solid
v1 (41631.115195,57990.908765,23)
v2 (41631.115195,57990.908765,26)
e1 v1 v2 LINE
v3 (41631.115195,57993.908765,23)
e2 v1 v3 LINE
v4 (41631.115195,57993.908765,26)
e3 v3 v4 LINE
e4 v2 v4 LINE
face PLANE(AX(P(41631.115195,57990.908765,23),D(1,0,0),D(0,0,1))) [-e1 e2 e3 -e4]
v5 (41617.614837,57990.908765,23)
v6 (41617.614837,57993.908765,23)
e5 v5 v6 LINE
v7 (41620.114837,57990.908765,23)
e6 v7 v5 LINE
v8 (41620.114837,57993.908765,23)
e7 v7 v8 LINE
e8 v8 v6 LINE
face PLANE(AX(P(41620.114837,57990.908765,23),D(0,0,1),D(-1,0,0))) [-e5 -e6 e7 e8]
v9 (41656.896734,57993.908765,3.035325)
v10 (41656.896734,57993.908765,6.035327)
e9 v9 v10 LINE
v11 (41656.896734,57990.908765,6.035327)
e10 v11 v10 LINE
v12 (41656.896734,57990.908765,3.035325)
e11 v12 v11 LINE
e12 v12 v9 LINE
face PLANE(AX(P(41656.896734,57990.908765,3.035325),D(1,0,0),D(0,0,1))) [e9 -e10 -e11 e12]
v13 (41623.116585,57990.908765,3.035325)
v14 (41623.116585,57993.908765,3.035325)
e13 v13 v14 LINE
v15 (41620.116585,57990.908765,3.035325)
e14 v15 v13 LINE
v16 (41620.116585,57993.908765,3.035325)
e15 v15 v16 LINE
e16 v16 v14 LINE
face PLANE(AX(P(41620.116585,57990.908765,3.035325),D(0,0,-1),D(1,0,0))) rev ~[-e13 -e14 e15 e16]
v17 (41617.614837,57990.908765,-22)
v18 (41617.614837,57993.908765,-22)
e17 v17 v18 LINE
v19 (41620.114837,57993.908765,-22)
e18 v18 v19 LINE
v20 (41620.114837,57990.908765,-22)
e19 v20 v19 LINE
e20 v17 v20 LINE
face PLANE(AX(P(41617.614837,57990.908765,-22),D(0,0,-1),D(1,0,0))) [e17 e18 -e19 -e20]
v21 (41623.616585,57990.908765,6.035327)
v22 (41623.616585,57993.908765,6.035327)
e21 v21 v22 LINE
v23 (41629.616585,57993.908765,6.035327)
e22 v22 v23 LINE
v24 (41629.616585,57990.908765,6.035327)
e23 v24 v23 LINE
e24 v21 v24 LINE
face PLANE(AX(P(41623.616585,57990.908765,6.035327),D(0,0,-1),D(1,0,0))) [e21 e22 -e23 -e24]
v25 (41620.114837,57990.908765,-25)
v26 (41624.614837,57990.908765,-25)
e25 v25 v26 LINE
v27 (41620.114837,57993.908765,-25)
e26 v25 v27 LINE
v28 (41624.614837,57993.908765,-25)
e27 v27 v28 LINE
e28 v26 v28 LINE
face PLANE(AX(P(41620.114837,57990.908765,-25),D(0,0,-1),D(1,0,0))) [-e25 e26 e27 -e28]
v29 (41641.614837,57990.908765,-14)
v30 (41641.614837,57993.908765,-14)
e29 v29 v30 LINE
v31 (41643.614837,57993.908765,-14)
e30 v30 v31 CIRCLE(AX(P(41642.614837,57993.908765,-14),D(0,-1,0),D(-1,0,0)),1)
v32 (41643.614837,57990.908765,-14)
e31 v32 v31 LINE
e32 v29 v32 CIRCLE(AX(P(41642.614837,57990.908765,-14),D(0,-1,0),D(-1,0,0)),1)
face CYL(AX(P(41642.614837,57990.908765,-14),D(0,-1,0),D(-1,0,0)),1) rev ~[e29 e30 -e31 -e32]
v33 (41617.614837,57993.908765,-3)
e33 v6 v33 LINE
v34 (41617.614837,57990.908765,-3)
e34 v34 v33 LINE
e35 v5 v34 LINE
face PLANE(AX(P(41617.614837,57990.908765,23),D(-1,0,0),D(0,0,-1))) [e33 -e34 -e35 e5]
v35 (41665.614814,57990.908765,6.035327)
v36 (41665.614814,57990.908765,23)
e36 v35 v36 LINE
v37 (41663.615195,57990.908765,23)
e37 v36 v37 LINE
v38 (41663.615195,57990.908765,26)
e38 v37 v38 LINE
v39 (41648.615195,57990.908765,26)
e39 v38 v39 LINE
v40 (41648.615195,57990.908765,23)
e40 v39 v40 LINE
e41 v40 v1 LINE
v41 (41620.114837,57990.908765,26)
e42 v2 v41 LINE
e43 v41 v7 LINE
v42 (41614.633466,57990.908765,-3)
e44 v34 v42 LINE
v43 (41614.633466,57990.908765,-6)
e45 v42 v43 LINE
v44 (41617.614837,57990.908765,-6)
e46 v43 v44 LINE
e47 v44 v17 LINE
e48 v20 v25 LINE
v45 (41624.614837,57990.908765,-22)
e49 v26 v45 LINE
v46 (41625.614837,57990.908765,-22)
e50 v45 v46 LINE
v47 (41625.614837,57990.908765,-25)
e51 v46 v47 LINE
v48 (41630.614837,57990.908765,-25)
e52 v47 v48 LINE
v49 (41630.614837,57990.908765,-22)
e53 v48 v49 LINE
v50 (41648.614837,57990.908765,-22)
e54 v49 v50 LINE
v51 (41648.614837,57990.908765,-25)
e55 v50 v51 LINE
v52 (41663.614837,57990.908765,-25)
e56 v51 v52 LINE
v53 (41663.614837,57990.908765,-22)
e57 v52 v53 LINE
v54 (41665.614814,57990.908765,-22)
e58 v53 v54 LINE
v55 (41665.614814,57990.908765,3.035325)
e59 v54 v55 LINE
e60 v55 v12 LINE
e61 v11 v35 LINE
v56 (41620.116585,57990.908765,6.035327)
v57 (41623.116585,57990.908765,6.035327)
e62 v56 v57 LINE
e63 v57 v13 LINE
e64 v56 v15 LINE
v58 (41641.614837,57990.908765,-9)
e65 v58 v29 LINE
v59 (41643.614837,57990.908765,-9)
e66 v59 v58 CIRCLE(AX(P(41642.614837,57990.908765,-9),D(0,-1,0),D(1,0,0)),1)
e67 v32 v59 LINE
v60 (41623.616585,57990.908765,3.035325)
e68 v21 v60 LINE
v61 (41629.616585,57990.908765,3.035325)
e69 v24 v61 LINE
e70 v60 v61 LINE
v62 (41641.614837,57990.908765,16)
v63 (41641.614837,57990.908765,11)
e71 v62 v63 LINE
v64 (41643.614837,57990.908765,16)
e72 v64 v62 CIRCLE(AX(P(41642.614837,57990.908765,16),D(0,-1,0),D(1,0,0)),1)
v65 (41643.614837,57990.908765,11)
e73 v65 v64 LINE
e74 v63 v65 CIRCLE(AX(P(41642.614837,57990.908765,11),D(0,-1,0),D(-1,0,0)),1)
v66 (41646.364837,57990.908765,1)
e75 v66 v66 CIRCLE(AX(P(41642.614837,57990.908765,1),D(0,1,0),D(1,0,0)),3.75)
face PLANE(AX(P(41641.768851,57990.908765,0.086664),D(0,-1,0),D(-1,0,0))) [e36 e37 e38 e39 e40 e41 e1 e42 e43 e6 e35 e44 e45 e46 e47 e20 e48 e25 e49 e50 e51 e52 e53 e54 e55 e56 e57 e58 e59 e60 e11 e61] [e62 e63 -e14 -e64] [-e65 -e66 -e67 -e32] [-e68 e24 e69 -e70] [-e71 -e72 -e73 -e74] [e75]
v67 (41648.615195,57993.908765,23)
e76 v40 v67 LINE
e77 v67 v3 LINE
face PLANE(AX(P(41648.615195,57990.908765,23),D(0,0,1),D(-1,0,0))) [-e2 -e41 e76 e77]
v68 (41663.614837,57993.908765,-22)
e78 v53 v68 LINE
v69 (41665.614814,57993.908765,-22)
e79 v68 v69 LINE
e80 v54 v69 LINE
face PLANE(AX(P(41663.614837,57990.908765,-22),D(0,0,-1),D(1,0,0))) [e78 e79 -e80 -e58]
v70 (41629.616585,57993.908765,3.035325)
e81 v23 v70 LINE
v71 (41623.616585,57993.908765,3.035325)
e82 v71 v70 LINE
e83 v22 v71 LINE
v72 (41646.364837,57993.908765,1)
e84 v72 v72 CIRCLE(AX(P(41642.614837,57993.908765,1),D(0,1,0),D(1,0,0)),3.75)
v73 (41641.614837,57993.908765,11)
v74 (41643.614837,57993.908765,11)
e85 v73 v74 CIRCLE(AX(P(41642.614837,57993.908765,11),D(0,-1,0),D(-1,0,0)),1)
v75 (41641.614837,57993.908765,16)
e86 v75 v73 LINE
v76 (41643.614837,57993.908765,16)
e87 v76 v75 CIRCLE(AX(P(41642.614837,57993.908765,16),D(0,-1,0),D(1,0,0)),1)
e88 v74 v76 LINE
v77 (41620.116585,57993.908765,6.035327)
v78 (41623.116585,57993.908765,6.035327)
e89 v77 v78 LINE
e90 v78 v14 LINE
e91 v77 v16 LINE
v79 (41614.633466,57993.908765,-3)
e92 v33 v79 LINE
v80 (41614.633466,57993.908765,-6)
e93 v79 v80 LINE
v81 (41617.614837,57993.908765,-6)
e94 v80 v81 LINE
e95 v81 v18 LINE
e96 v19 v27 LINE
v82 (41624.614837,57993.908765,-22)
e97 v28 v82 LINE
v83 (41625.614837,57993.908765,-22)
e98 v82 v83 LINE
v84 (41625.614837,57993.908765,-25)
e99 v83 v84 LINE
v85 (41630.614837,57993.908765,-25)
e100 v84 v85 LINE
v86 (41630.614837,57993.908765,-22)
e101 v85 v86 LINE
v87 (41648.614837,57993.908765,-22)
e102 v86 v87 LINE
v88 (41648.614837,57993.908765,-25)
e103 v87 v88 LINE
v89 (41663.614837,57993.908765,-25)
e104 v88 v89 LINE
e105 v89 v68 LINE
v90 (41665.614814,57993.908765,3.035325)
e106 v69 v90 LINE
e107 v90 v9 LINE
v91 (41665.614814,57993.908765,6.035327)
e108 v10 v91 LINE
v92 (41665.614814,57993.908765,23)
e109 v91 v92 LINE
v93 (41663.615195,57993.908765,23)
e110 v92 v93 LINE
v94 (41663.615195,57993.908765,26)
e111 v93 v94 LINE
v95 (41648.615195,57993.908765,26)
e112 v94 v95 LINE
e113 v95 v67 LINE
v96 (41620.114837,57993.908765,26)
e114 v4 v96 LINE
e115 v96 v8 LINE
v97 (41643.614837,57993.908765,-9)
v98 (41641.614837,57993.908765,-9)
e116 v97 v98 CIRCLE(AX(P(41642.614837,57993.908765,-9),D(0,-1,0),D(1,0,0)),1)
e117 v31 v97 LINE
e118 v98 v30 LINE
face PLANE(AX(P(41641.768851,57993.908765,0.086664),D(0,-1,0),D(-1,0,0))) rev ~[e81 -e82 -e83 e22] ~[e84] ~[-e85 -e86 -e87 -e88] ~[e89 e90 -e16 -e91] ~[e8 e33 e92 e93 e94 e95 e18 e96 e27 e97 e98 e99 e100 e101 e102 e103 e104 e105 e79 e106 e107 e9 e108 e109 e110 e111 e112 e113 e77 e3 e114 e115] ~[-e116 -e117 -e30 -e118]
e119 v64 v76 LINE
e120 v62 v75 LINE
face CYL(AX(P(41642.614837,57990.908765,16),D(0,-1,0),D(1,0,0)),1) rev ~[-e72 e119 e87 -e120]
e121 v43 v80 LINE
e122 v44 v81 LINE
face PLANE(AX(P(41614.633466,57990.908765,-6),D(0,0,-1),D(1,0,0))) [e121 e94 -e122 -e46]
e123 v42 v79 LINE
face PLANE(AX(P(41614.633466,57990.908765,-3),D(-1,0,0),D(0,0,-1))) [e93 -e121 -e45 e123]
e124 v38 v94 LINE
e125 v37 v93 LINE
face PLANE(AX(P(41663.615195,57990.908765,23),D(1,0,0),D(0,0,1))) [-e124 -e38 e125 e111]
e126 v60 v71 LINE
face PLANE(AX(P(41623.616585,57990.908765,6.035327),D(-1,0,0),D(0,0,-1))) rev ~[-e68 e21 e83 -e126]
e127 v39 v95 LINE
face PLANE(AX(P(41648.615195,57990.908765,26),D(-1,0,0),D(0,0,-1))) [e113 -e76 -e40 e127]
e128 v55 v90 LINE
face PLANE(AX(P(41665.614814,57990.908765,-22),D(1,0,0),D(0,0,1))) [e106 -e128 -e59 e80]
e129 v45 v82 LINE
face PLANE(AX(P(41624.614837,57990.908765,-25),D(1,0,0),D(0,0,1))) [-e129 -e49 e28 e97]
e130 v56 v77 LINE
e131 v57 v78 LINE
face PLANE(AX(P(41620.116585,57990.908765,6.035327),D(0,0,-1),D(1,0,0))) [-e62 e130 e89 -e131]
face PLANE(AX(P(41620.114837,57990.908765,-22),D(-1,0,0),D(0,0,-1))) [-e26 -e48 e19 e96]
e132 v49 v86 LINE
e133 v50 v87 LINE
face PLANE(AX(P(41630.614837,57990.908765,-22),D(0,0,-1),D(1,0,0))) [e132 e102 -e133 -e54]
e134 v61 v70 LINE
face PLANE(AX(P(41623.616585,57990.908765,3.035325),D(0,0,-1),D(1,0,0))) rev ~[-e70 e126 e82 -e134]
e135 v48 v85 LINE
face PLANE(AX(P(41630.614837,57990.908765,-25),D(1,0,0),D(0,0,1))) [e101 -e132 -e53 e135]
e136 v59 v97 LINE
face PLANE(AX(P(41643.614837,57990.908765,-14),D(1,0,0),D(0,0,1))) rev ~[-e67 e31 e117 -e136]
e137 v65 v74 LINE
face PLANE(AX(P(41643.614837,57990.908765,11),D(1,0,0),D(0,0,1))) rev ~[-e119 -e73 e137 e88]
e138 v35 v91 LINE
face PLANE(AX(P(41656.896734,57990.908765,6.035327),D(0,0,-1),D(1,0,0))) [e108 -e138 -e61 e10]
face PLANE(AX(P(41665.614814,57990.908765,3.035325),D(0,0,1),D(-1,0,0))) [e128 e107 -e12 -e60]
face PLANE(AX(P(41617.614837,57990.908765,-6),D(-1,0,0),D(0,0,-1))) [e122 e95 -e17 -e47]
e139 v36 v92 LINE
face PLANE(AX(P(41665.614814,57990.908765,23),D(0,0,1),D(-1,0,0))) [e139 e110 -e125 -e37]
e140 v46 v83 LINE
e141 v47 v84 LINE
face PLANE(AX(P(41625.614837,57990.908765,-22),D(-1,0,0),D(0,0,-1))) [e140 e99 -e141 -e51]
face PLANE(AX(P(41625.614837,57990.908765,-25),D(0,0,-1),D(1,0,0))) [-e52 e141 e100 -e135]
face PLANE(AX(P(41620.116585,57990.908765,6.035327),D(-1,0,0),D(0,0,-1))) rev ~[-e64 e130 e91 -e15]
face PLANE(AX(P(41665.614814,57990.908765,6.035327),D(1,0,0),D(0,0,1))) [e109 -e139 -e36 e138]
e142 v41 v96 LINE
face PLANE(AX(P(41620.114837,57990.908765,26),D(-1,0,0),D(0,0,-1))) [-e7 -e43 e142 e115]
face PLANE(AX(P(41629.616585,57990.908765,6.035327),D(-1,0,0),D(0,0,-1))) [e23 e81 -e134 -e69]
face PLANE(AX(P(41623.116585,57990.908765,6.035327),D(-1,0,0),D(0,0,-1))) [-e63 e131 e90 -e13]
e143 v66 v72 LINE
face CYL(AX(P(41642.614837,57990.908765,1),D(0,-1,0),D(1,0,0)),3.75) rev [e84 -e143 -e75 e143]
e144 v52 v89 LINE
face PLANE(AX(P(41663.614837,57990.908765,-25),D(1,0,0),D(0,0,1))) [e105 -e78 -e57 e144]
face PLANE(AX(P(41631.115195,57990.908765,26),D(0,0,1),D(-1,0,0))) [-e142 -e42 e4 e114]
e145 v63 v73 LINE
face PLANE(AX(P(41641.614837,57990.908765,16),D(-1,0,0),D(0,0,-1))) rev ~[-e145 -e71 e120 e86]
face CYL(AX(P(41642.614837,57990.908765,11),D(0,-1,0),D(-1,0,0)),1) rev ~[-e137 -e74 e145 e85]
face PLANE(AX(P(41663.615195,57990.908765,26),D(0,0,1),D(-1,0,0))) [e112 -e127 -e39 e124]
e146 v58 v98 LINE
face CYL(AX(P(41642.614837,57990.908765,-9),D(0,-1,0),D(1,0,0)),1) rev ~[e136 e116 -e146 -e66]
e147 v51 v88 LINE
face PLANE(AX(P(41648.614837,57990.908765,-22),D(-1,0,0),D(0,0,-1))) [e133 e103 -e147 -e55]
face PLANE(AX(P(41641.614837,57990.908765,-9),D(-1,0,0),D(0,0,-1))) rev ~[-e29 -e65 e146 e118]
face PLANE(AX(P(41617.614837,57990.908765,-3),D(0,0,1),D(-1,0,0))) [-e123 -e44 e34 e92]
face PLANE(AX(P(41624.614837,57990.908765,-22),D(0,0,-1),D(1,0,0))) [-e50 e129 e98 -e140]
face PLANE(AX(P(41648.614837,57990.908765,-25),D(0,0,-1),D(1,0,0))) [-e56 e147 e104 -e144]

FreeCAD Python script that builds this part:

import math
import FreeCAD as App
import Part
import Sketcher

V = App.Vector

doc = App.newDocument("Part")
body = doc.addObject("PartDesign::Body", "Body")

# Sketch on XY plane
sketch1 = body.newObject("Sketcher::SketchObject", "Sketch")
sketch1.AttachmentSupport = (doc.getObject("XY_Plane"), [""])
sketch1.MapMode = "FlatFace"
sketch1.addGeometry([
    Part.LineSegment(V(41648.614837, 58015.908765, 0), V(41630.614837, 58015.908765, 0)),  # 0
    Part.LineSegment(V(41630.614837, 58015.908765, 0), V(41630.614837, 58018.908765, 0)),  # 1
    Part.LineSegment(V(41630.614837, 58018.908765, 0), V(41625.614837, 58018.908765, 0)),  # 2
    Part.LineSegment(V(41625.614837, 58018.908765, 0), V(41625.614837, 58015.908765, 0)),  # 3
    Part.LineSegment(V(41625.614837, 58015.908765, 0), V(41624.614837, 58015.908765, 0)),  # 4
    Part.LineSegment(V(41624.614837, 58015.908765, 0), V(41624.614837, 58018.908765, 0)),  # 5
    Part.LineSegment(V(41624.614837, 58018.908765, 0), V(41620.114837, 58018.908765, 0)),  # 6
    Part.LineSegment(V(41620.114837, 58018.908765, 0), V(41620.114837, 58015.908765, 0)),  # 7
    Part.LineSegment(V(41620.114837, 58015.908765, 0), V(41617.614837, 58015.908765, 0)),  # 8
    Part.LineSegment(V(41617.614837, 58015.908765, 0), V(41617.614837, 57999.908765, 0)),  # 9
    Part.LineSegment(V(41617.614837, 57999.908765, 0), V(41614.633466, 57999.908765, 0)),  # 10
    Part.LineSegment(V(41614.633466, 57999.908765, 0), V(41614.633466, 57996.908765, 0)),  # 11
    Part.LineSegment(V(41614.633466, 57996.908765, 0), V(41617.614837, 57996.908765, 0)),  # 12
    Part.LineSegment(V(41617.614837, 57996.908765, 0), V(41617.614837, 57970.908765, 0)),  # 13
    Part.LineSegment(V(41617.614837, 57970.908765, 0), V(41620.114837, 57970.908765, 0)),  # 14
    Part.LineSegment(V(41620.114837, 57970.908765, 0), V(41620.114837, 57967.908765, 0)),  # 15
    Part.LineSegment(V(41620.114837, 57967.908765, 0), V(41631.115195, 57967.908765, 0)),  # 16
    Part.LineSegment(V(41631.115195, 57967.908765, 0), V(41631.115195, 57970.908765, 0)),  # 17
    Part.LineSegment(V(41631.115195, 57970.908765, 0), V(41648.615195, 57970.908765, 0)),  # 18
    Part.LineSegment(V(41648.615195, 57970.908765, 0), V(41648.615195, 57967.908765, 0)),  # 19
    Part.LineSegment(V(41648.615195, 57967.908765, 0), V(41663.615195, 57967.908765, 0)),  # 20
    Part.LineSegment(V(41663.615195, 57967.908765, 0), V(41663.615195, 57970.908765, 0)),  # 21
    Part.LineSegment(V(41663.615195, 57970.908765, 0), V(41665.614814, 57970.908765, 0)),  # 22
    Part.LineSegment(V(41665.614814, 57970.908765, 0), V(41665.614814, 57987.873439, 0)),  # 23
    Part.LineSegment(V(41665.614814, 57987.873439, 0), V(41656.896734, 57987.873439, 0)),  # 24
    Part.LineSegment(V(41656.896734, 57987.873439, 0), V(41656.896734, 57990.87344, 0)),  # 25
    Part.LineSegment(V(41656.896734, 57990.87344, 0), V(41665.614814, 57990.87344, 0)),  # 26
    Part.LineSegment(V(41665.614814, 57990.87344, 0), V(41665.614814, 58015.908765, 0)),  # 27
    Part.LineSegment(V(41665.614814, 58015.908765, 0), V(41663.614837, 58015.908765, 0)),  # 28
    Part.LineSegment(V(41663.614837, 58015.908765, 0), V(41663.614837, 58018.908765, 0)),  # 29
    Part.LineSegment(V(41663.614837, 58018.908765, 0), V(41648.614837, 58018.908765, 0)),  # 30
    Part.LineSegment(V(41648.614837, 58018.908765, 0), V(41648.614837, 58015.908765, 0)),  # 31
    Part.LineSegment(V(41643.614837, 57982.908765, 0), V(41643.614837, 57977.908765, 0)),  # 32
    Part.ArcOfCircle(Part.Circle(V(41642.614837, 57977.908765, 0), V(0, 0, 1), 1), math.radians(180), math.radians(360)),  # 33
    Part.LineSegment(V(41641.614837, 57977.908765, 0), V(41641.614837, 57982.908765, 0)),  # 34
    Part.ArcOfCircle(Part.Circle(V(41642.614837, 57982.908765, 0), V(0, 0, 1), 1), math.radians(0), math.radians(180)),  # 35
    Part.LineSegment(V(41623.616585, 57987.873439, 0), V(41623.616585, 57990.87344, 0)),  # 36
    Part.LineSegment(V(41623.616585, 57990.87344, 0), V(41629.616585, 57990.87344, 0)),  # 37
    Part.LineSegment(V(41629.616585, 57990.87344, 0), V(41629.616585, 57987.873439, 0)),  # 38
    Part.LineSegment(V(41629.616585, 57987.873439, 0), V(41623.616585, 57987.873439, 0)),  # 39
    Part.LineSegment(V(41620.116585, 57987.873439, 0), V(41620.116585, 57990.87344, 0)),  # 40
    Part.LineSegment(V(41620.116585, 57990.87344, 0), V(41623.116585, 57990.87344, 0)),  # 41
    Part.LineSegment(V(41623.116585, 57990.87344, 0), V(41623.116585, 57987.873439, 0)),  # 42
    Part.LineSegment(V(41623.116585, 57987.873439, 0), V(41620.116585, 57987.873439, 0)),  # 43
    Part.Circle(V(41642.614837, 57992.908765, 0), V(0, 0, 1), 3.75),  # 44
    Part.LineSegment(V(41643.614837, 58007.908765, 0), V(41643.614837, 58002.908765, 0)),  # 45
    Part.ArcOfCircle(Part.Circle(V(41642.614837, 58002.908765, 0), V(0, 0, 1), 1), math.radians(180), math.radians(360)),  # 46
    Part.LineSegment(V(41641.614837, 58002.908765, 0), V(41641.614837, 58007.908765, 0)),  # 47
    Part.ArcOfCircle(Part.Circle(V(41642.614837, 58007.908765, 0), V(0, 0, 1), 1), math.radians(0), math.radians(180)),  # 48
], False)
sketch1.addConstraint([
    Sketcher.Constraint("Coincident", 0, 2, 1, 1),
    Sketcher.Constraint("Coincident", 1, 2, 2, 1),
    Sketcher.Constraint("Coincident", 2, 2, 3, 1),
    Sketcher.Constraint("Coincident", 3, 2, 4, 1),
    Sketcher.Constraint("Coincident", 4, 2, 5, 1),
    Sketcher.Constraint("Coincident", 5, 2, 6, 1),
    Sketcher.Constraint("Coincident", 6, 2, 7, 1),
    Sketcher.Constraint("Coincident", 7, 2, 8, 1),
    Sketcher.Constraint("Coincident", 8, 2, 9, 1),
    Sketcher.Constraint("Coincident", 9, 2, 10, 1),
    Sketcher.Constraint("Coincident", 10, 2, 11, 1),
    Sketcher.Constraint("Coincident", 11, 2, 12, 1),
    Sketcher.Constraint("Coincident", 12, 2, 13, 1),
    Sketcher.Constraint("Coincident", 13, 2, 14, 1),
    Sketcher.Constraint("Coincident", 14, 2, 15, 1),
    Sketcher.Constraint("Coincident", 15, 2, 16, 1),
    Sketcher.Constraint("Coincident", 16, 2, 17, 1),
    Sketcher.Constraint("Coincident", 17, 2, 18, 1),
    Sketcher.Constraint("Coincident", 18, 2, 19, 1),
    Sketcher.Constraint("Coincident", 19, 2, 20, 1),
    Sketcher.Constraint("Coincident", 20, 2, 21, 1),
    Sketcher.Constraint("Coincident", 21, 2, 22, 1),
    Sketcher.Constraint("Coincident", 22, 2, 23, 1),
    Sketcher.Constraint("Coincident", 23, 2, 24, 1),
    Sketcher.Constraint("Coincident", 24, 2, 25, 1),
    Sketcher.Constraint("Coincident", 25, 2, 26, 1),
    Sketcher.Constraint("Coincident", 26, 2, 27, 1),
    Sketcher.Constraint("Coincident", 27, 2, 28, 1),
    Sketcher.Constraint("Coincident", 28, 2, 29, 1),
    Sketcher.Constraint("Coincident", 29, 2, 30, 1),
    Sketcher.Constraint("Coincident", 30, 2, 31, 1),
    Sketcher.Constraint("Coincident", 31, 2, 0, 1),
    Sketcher.Constraint("Tangent", 32, 2, 33, 2),
    Sketcher.Constraint("Tangent", 33, 1, 34, 1),
    Sketcher.Constraint("Tangent", 34, 2, 35, 2),
    Sketcher.Constraint("Tangent", 35, 1, 32, 1),
    Sketcher.Constraint("Coincident", 36, 2, 37, 1),
    Sketcher.Constraint("Coincident", 37, 2, 38, 1),
    Sketcher.Constraint("Coincident", 38, 2, 39, 1),
    Sketcher.Constraint("Coincident", 39, 2, 36, 1),
    Sketcher.Constraint("Coincident", 40, 2, 41, 1),
    Sketcher.Constraint("Coincident", 41, 2, 42, 1),
    Sketcher.Constraint("Coincident", 42, 2, 43, 1),
    Sketcher.Constraint("Coincident", 43, 2, 40, 1),
    Sketcher.Constraint("Tangent", 45, 2, 46, 2),
    Sketcher.Constraint("Tangent", 46, 1, 47, 1),
    Sketcher.Constraint("Tangent", 47, 2, 48, 2),
    Sketcher.Constraint("Tangent", 48, 1, 45, 1),
    Sketcher.Constraint("Horizontal", 0),
    Sketcher.Constraint("Vertical", 1),
    Sketcher.Constraint("Horizontal", 2),
    Sketcher.Constraint("Vertical", 3),
    Sketcher.Constraint("Horizontal", 4),
    Sketcher.Constraint("Vertical", 5),
    Sketcher.Constraint("Horizontal", 6),
    Sketcher.Constraint("Vertical", 7),
    Sketcher.Constraint("Horizontal", 8),
    Sketcher.Constraint("Vertical", 9),
    Sketcher.Constraint("Horizontal", 10),
    Sketcher.Constraint("Vertical", 11),
    Sketcher.Constraint("Horizontal", 12),
    Sketcher.Constraint("Vertical", 13),
    Sketcher.Constraint("Horizontal", 14),
    Sketcher.Constraint("Vertical", 15),
    Sketcher.Constraint("Horizontal", 16),
    Sketcher.Constraint("Vertical", 17),
    Sketcher.Constraint("Horizontal", 18),
    Sketcher.Constraint("Vertical", 19),
    Sketcher.Constraint("Horizontal", 20),
    Sketcher.Constraint("Vertical", 21),
    Sketcher.Constraint("Horizontal", 22),
    Sketcher.Constraint("Vertical", 23),
    Sketcher.Constraint("Horizontal", 24),
    Sketcher.Constraint("Vertical", 25),
    Sketcher.Constraint("Horizontal", 26),
    Sketcher.Constraint("Vertical", 27),
    Sketcher.Constraint("Horizontal", 28),
    Sketcher.Constraint("Vertical", 29),
    Sketcher.Constraint("Horizontal", 30),
    Sketcher.Constraint("Vertical", 31),
    Sketcher.Constraint("Vertical", 32),
    Sketcher.Constraint("Vertical", 34),
    Sketcher.Constraint("Vertical", 36),
    Sketcher.Constraint("Horizontal", 37),
    Sketcher.Constraint("Vertical", 38),
    Sketcher.Constraint("Horizontal", 39),
    Sketcher.Constraint("Vertical", 40),
    Sketcher.Constraint("Horizontal", 41),
    Sketcher.Constraint("Vertical", 42),
    Sketcher.Constraint("Horizontal", 43),
    Sketcher.Constraint("Vertical", 45),
    Sketcher.Constraint("Vertical", 47),
    Sketcher.Constraint("Equal", 35, 46),
    Sketcher.Constraint("Horizontal", 0, 2, 3, 2),
    Sketcher.Constraint("Horizontal", 2, 2, 5, 2),
    Sketcher.Constraint("Horizontal", 4, 2, 7, 2),
    Sketcher.Constraint("Horizontal", 14, 2, 17, 2),
    Sketcher.Constraint("Horizontal", 16, 2, 19, 2),
    Sketcher.Constraint("Horizontal", 18, 2, 21, 2),
    Sketcher.Constraint("Horizontal", 8, 2, 27, 2),
    Sketcher.Constraint("Horizontal", 6, 2, 29, 2),
    Sketcher.Constraint("Horizontal", 26, 2, 36, 2),
    Sketcher.Constraint("Horizontal", 24, 2, 38, 2),
    Sketcher.Constraint("Horizontal", 37, 2, 40, 2),
    Sketcher.Constraint("Horizontal", 39, 2, 42, 2),
    Sketcher.Constraint("Vertical", 35, 3, 44, 3),
    Sketcher.Constraint("Vertical", 44, 3, 46, 3),
    Sketcher.Constraint("Vertical", 9, 2, 12, 2),
    Sketcher.Constraint("Vertical", 7, 2, 14, 2),
    Sketcher.Constraint("Vertical", 23, 2, 26, 2),
    Sketcher.Constraint("Equal", 20, 30),
    Sketcher.Constraint("Equal", 43, 1),
    Sketcher.Constraint("Equal", 7, 11),
    Sketcher.Constraint("Equal", 11, 15),
    Sketcher.Constraint("Equal", 21, 25),
    Sketcher.Constraint("Equal", 2, 32),
    Sketcher.Constraint("Equal", 34, 45),
    Sketcher.Constraint("Radius", 33, 1.0),
    Sketcher.Constraint("Diameter", 44, 7.5),
    Sketcher.Constraint("DistanceX", 0, 2, 0, 1, 18.0),
    Sketcher.Constraint("DistanceX", 2, 2, 2, 1, 5.0),
    Sketcher.Constraint("DistanceX", 4, 2, 4, 1, 1.0),
    Sketcher.Constraint("DistanceX", 20, 1, 20, 2, 15.0),
    Sketcher.Constraint("DistanceX", 37, 1, 37, 2, 6.0),
    Sketcher.Constraint("DistanceX", 41, 1, 41, 2, 3.0),
    Sketcher.Constraint("DistanceY", 9, 2, 9, 1, 16.0),
    Sketcher.Constraint("DistanceY", 13, 2, 13, 1, 26.0),
    Sketcher.Constraint("DistanceX", 6, 2, 6, 1, 4.5),
    Sketcher.Constraint("DistanceX", 8, 2, 8, 1, 2.5),
    Sketcher.Constraint("DistanceX", 18, 1, 18, 2, 17.5),
    Sketcher.Constraint("DistanceY", 35, 3, 44, 3, 10.0),
    Sketcher.Constraint("DistanceY", 44, 3, 46, 3, 10.0),
    Sketcher.Constraint("DistanceX", 0, 2, 48, 3, 12.0),
    Sketcher.Constraint("DistanceY", 48, 3, 0, 2, 8.0),
    Sketcher.Constraint("DistanceX", 40, 2, 36, 2, 3.5),
    Sketcher.Constraint("DistanceX", 10, 2, 10, 1, 2.981371),
    Sketcher.Constraint("DistanceX", 16, 1, 16, 2, 11.000358),
    Sketcher.Constraint("DistanceX", 22, 1, 22, 2, 1.999618),
    Sketcher.Constraint("DistanceX", 24, 2, 24, 1, 8.71808),
    Sketcher.Constraint("DistanceY", 23, 1, 23, 2, 16.964673),
    Sketcher.Constraint("DistanceY", -1, 1, 23, 2, 57987.873439),
    Sketcher.Constraint("DistanceX", 11, 2, 36, 2, 8.983119),
    Sketcher.Constraint("DistanceX", -1, 1, 33, 3, 41642.614837),
])
pad1 = body.newObject("PartDesign::Pad", "Pad")
pad1.Profile = sketch1
pad1.Length = 3
body2 = doc.addObject("PartDesign::Body", "Body001")
doc.recompute()

body.Placement = App.Placement(V(0, 57990.908765, 57993.908765), App.Rotation(V(-1, 0, 0), 90))
boolean = body2.newObject("PartDesign::Boolean", "Boolean")
boolean.Type = "Fuse"
boolean.addObjects([body])

doc.recompute()
